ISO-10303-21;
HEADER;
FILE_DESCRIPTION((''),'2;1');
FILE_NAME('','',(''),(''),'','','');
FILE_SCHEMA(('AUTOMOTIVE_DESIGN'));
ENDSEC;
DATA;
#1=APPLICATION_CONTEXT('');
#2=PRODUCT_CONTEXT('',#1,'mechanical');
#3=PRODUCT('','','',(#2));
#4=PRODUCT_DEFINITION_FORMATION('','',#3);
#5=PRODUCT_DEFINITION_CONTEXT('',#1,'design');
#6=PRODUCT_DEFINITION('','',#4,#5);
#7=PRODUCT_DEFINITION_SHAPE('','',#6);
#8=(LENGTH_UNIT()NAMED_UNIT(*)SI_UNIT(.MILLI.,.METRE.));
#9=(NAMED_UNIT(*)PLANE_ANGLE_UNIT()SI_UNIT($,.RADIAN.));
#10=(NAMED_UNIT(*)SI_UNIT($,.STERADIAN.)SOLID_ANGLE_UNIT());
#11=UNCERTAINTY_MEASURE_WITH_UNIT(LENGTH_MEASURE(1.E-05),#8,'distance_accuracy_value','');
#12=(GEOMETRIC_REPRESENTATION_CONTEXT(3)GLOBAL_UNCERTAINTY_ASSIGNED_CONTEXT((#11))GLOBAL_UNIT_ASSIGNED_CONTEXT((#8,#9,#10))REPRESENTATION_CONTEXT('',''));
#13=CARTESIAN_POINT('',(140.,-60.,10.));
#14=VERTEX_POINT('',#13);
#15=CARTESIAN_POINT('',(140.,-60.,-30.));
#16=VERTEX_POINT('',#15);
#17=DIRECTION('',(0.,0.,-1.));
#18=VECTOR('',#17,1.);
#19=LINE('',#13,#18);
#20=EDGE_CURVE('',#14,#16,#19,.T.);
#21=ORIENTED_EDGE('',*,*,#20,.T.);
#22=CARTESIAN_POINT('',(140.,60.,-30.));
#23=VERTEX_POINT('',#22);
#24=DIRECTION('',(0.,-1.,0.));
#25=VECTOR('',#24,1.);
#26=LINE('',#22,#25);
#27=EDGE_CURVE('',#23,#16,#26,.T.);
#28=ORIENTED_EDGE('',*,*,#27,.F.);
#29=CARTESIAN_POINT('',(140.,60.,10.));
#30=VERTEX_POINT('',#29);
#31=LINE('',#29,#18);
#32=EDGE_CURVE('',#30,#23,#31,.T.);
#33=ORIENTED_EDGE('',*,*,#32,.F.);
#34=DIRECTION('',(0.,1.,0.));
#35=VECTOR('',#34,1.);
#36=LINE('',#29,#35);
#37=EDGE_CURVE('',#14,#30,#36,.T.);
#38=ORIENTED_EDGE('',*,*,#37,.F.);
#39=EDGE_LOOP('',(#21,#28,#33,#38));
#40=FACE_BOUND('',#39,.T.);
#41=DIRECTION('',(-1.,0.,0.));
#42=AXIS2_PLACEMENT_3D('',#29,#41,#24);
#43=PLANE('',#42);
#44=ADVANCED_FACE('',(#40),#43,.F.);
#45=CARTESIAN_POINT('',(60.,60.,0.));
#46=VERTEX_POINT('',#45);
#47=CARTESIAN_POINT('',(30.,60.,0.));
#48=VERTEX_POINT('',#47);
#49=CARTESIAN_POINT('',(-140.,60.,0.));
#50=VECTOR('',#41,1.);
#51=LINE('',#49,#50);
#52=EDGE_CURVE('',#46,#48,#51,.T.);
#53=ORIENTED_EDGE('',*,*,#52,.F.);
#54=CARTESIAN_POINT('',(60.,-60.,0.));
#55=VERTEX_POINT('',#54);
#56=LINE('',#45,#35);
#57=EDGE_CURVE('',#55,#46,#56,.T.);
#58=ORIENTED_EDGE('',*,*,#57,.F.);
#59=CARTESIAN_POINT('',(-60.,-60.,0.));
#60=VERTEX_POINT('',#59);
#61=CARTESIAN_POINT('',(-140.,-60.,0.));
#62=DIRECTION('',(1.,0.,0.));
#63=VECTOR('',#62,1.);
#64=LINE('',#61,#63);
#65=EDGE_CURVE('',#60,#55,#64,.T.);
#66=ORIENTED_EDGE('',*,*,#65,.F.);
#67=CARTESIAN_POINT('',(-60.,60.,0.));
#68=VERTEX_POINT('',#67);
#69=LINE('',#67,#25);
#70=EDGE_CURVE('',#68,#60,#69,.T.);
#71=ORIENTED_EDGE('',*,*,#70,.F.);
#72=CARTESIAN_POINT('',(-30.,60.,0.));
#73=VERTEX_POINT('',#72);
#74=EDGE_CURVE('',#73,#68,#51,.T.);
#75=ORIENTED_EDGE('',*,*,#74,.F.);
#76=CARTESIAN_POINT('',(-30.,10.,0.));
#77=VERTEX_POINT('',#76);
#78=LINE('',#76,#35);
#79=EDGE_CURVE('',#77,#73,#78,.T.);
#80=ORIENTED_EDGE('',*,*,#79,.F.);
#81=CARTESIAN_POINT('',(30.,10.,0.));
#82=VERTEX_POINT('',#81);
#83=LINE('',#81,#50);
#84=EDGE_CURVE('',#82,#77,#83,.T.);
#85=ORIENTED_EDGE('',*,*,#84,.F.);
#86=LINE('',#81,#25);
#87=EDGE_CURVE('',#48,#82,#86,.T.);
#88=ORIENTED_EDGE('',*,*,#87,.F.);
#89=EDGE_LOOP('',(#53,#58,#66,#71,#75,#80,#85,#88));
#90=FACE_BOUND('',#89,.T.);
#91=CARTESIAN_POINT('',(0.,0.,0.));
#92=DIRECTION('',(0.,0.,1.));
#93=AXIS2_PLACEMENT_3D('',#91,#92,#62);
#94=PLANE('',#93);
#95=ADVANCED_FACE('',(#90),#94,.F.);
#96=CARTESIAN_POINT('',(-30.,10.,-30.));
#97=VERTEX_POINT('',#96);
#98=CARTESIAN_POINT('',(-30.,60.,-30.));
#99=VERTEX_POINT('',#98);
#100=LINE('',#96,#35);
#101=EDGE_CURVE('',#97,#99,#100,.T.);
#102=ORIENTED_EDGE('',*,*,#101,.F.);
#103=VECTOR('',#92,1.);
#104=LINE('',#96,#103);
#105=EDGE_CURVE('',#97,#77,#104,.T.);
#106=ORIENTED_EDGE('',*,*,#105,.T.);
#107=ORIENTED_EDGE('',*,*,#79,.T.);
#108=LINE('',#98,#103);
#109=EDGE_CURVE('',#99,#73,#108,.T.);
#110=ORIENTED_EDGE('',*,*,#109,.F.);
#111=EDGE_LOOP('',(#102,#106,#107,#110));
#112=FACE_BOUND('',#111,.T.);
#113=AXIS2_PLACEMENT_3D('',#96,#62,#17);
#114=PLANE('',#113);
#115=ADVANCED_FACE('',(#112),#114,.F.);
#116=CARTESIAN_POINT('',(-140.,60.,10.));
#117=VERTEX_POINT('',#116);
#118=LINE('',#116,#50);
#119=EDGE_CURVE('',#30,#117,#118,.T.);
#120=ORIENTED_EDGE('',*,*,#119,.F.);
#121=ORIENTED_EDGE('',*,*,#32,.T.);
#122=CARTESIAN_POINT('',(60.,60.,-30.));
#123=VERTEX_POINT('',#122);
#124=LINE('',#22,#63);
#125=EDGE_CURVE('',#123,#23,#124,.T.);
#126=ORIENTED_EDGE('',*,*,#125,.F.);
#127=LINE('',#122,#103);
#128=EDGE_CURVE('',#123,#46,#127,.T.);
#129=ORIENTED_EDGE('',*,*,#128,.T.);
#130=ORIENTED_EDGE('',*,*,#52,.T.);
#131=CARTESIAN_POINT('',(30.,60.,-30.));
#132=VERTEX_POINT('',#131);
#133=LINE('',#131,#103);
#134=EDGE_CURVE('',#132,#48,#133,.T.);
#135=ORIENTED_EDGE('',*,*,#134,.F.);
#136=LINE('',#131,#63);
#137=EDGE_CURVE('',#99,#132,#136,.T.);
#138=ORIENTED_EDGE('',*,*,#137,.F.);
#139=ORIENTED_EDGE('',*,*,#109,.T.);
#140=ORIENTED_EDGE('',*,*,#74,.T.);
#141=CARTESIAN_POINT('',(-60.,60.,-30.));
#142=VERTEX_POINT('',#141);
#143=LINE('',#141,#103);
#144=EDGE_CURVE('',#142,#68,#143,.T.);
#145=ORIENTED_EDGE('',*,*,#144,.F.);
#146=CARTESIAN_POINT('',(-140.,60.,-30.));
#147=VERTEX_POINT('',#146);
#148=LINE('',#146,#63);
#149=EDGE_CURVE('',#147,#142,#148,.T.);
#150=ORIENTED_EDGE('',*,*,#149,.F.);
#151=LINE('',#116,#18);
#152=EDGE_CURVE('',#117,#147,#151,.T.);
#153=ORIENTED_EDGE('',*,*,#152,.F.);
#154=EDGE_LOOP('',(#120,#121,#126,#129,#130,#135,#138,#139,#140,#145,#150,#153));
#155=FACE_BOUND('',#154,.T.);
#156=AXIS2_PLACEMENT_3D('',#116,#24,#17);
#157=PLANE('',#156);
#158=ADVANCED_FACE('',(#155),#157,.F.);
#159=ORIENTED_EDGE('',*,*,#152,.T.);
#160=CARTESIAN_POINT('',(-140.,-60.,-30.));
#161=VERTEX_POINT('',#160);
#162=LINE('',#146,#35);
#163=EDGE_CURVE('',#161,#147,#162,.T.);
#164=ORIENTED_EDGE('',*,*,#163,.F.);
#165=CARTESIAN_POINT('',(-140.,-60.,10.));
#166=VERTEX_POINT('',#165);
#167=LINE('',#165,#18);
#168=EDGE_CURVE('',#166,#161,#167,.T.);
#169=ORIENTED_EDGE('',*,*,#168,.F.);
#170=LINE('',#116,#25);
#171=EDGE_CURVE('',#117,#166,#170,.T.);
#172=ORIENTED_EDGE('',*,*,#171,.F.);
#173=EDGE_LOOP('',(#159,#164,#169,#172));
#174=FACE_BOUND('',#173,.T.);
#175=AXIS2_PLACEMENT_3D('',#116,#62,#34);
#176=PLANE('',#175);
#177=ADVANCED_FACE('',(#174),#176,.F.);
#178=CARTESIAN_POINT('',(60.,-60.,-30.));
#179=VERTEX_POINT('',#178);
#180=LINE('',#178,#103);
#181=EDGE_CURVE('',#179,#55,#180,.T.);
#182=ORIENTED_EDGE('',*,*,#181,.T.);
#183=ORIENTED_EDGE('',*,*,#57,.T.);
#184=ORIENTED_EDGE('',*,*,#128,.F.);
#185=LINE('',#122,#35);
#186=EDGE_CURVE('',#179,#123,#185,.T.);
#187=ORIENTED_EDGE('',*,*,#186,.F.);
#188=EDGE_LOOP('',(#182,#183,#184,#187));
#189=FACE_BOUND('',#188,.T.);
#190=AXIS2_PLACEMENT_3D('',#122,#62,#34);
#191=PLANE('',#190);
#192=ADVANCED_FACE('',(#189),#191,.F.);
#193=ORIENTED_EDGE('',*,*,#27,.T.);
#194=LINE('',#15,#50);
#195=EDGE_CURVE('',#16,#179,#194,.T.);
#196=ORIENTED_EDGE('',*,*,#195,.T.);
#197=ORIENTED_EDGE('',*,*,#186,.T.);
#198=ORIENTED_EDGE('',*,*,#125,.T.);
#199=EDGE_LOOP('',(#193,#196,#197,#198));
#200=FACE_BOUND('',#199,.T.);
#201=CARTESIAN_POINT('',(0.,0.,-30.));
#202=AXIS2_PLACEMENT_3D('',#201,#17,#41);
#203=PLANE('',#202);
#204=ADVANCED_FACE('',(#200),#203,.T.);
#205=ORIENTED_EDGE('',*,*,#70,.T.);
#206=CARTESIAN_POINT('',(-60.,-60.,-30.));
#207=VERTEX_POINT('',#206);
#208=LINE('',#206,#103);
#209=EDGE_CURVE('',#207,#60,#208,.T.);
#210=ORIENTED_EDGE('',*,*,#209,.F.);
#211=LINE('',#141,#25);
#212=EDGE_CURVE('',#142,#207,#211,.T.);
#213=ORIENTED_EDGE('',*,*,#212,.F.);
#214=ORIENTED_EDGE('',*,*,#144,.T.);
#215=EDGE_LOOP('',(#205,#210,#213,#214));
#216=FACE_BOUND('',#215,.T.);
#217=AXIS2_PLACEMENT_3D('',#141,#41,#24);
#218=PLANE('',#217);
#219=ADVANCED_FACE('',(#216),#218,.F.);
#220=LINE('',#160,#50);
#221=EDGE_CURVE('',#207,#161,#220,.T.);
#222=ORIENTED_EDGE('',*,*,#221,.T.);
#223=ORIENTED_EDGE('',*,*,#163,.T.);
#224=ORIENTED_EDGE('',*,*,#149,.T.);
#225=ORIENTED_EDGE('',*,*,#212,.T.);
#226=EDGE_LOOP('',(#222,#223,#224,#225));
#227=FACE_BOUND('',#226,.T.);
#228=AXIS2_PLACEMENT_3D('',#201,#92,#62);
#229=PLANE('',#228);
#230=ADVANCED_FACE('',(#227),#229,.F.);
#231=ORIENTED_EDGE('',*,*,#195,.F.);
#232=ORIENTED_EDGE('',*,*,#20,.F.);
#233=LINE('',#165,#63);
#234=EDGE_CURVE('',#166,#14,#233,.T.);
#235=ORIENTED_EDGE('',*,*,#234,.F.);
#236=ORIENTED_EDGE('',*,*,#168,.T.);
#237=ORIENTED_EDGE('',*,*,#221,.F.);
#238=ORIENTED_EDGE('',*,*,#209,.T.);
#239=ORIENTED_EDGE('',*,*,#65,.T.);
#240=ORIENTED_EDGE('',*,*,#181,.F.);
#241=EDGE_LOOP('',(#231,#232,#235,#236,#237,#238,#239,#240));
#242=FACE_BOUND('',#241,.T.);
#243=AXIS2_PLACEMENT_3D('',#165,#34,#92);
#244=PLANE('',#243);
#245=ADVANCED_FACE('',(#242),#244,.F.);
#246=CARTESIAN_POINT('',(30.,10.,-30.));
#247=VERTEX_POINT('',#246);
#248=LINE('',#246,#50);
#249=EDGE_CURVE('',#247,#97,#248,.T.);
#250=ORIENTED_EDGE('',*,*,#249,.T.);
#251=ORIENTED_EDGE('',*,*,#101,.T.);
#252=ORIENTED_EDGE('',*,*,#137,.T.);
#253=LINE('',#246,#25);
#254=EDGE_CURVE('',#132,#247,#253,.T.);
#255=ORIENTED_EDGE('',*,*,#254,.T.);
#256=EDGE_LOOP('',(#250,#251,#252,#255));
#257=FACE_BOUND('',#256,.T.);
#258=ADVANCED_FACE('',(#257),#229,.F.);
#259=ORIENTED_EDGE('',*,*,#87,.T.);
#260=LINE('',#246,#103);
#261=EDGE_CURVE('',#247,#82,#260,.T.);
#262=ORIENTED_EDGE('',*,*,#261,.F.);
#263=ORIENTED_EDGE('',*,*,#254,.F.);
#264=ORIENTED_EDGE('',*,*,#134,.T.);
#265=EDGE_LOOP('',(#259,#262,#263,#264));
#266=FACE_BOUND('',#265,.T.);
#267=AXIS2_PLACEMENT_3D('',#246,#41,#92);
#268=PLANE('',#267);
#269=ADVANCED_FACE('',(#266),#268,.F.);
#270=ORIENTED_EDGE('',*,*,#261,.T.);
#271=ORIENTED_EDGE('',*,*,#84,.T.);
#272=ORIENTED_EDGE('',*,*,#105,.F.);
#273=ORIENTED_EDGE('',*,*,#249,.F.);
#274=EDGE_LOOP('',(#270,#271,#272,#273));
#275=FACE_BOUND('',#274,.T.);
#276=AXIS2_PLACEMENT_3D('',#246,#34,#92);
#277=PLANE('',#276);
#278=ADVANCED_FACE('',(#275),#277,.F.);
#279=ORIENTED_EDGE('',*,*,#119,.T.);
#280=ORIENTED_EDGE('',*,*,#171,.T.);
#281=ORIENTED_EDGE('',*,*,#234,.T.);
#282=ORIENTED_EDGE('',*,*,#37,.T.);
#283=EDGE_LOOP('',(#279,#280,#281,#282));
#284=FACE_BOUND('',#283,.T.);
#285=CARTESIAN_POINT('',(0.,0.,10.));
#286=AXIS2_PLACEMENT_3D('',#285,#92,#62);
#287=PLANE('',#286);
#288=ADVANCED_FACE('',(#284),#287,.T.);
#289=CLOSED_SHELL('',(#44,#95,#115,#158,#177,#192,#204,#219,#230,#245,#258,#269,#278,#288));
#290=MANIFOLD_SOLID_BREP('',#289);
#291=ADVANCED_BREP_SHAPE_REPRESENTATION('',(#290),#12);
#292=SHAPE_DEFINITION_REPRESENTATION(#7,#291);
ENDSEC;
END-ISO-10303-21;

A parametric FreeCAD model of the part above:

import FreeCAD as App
import Part
import Sketcher
Q = App.Units.Quantity


def add_polygon(sketch, points):
    """Adds a closed chain of lines whose ends are joined by coincident constraints."""
    first, n = sketch.GeometryCount, len(points)
    for a, b in zip(points, points[1:] + points[:1]):
        sketch.addGeometry(Part.LineSegment(App.Vector(*a, 0), App.Vector(*b, 0)), False)
    for i in range(n):
        sketch.addConstraint(Sketcher.Constraint("Coincident", first + i, 2, first + (i + 1) % n, 1))

doc = App.newDocument("Part")
params = doc.addObject("Spreadsheet::Sheet", "Params")
for row, (alias, value) in enumerate([
    ("sketch1_width", "280 mm"),
    ("sketch1_height", "120 mm"),
    ("pad1_length", "10 mm"),
    ("sketch2_width", "60 mm"),
    ("sketch2_height", "50 mm"),
    ("pad2_length", "30 mm"),
    ("sketch3_width", "80 mm"),
    ("sketch3_height", "120 mm"),
    ("pad3_length", "30 mm"),
], start=1):
    params.set(f"A{row}", alias)
    params.set(f"B{row}", "=" + value)
    params.setAlias(f"B{row}", alias)

body = doc.addObject("PartDesign::Body", "Body")

# Sketch on XY plane
sketch1 = body.newObject("Sketcher::SketchObject", "Sketch")
sketch1.AttachmentSupport = (doc.getObject("XY_Plane"), [""])
sketch1.MapMode = "FlatFace"
add_polygon(sketch1, [(-140, 60), (-140, -60), (140, -60), (140, 60)])  # lines 0-3
sketch1.addConstraint([
    Sketcher.Constraint("Vertical", 0),
    Sketcher.Constraint("Horizontal", 1),
    Sketcher.Constraint("Vertical", 2),
    Sketcher.Constraint("Horizontal", 3),
    Sketcher.Constraint("Symmetric", 0, 2, 2, 2, -1, 1),
    Sketcher.Constraint("DistanceX", 1, 1, 1, 2, Q("280 mm")),
    Sketcher.Constraint("DistanceY", 0, 2, 0, 1, Q("120 mm")),
])
sketch1.setExpression("Constraints[9]", "Params.sketch1_width")
sketch1.setExpression("Constraints[10]", "Params.sketch1_height")
pad1 = body.newObject("PartDesign::Pad", "Pad")
pad1.Profile = sketch1
pad1.setExpression("Length", "Params.pad1_length")

# Sketch on XY plane
sketch2 = body.newObject("Sketcher::SketchObject", "Sketch001")
sketch2.AttachmentSupport = (doc.getObject("XY_Plane"), [""])
sketch2.MapMode = "FlatFace"
add_polygon(sketch2, [(30, 60), (30, 10), (-30, 10), (-30, 60)])  # lines 0-3
sketch2.addConstraint([
    Sketcher.Constraint("Vertical", 0),
    Sketcher.Constraint("Horizontal", 1),
    Sketcher.Constraint("Vertical", 2),
    Sketcher.Constraint("Horizontal", 3),
    Sketcher.Constraint("DistanceX", 1, 2, 1, 1, Q("60 mm")),
    Sketcher.Constraint("DistanceY", 0, 2, 0, 1, Q("50 mm")),
    Sketcher.Constraint("DistanceX", -1, 1, 0, 2, Q("30 mm")),
    Sketcher.Constraint("DistanceY", -1, 1, 0, 2, Q("10 mm")),
])
sketch2.setExpression("Constraints[8]", "Params.sketch2_width")
sketch2.setExpression("Constraints[9]", "Params.sketch2_height")
pad2 = body.newObject("PartDesign::Pad", "Pad001")
pad2.Profile = sketch2
pad2.setExpression("Length", "Params.pad2_length")
pad2.Reversed = True

# Sketch on XY plane
sketch3 = body.newObject("Sketcher::SketchObject", "Sketch002")
sketch3.AttachmentSupport = (doc.getObject("XY_Plane"), [""])
sketch3.MapMode = "FlatFace"
add_polygon(sketch3, [(140, 60), (140, -60), (60, -60), (60, 60)])  # lines 0-3
add_polygon(sketch3, [(-60, 60), (-60, -60), (-140, -60), (-140, 60)])  # lines 4-7
sketch3.addConstraint([
    Sketcher.Constraint("Vertical", 0),
    Sketcher.Constraint("Horizontal", 1),
    Sketcher.Constraint("Vertical", 2),
    Sketcher.Constraint("Horizontal", 3),
    Sketcher.Constraint("Vertical", 4),
    Sketcher.Constraint("Horizontal", 5),
    Sketcher.Constraint("Vertical", 6),
    Sketcher.Constraint("Horizontal", 7),
    Sketcher.Constraint("Symmetric", 2, 2, 4, 2, -1, 1),
    Sketcher.Constraint("Symmetric", 0, 2, 6, 2, -1, 1),
    Sketcher.Constraint("Horizontal", 1, 2, 4, 2),
    Sketcher.Constraint("DistanceX", 1, 2, 1, 1, Q("80 mm")),
    Sketcher.Constraint("DistanceY", 0, 2, 0, 1, Q("120 mm")),
    Sketcher.Constraint("DistanceX", -1, 1, 0, 2, Q("140 mm")),
])
sketch3.setExpression("Constraints[19]", "Params.sketch3_width")
sketch3.setExpression("Constraints[20]", "Params.sketch3_height")
pad3 = body.newObject("PartDesign::Pad", "Pad002")
pad3.Profile = sketch3
pad3.setExpression("Length", "Params.pad3_length")
pad3.Reversed = True

doc.recompute()
